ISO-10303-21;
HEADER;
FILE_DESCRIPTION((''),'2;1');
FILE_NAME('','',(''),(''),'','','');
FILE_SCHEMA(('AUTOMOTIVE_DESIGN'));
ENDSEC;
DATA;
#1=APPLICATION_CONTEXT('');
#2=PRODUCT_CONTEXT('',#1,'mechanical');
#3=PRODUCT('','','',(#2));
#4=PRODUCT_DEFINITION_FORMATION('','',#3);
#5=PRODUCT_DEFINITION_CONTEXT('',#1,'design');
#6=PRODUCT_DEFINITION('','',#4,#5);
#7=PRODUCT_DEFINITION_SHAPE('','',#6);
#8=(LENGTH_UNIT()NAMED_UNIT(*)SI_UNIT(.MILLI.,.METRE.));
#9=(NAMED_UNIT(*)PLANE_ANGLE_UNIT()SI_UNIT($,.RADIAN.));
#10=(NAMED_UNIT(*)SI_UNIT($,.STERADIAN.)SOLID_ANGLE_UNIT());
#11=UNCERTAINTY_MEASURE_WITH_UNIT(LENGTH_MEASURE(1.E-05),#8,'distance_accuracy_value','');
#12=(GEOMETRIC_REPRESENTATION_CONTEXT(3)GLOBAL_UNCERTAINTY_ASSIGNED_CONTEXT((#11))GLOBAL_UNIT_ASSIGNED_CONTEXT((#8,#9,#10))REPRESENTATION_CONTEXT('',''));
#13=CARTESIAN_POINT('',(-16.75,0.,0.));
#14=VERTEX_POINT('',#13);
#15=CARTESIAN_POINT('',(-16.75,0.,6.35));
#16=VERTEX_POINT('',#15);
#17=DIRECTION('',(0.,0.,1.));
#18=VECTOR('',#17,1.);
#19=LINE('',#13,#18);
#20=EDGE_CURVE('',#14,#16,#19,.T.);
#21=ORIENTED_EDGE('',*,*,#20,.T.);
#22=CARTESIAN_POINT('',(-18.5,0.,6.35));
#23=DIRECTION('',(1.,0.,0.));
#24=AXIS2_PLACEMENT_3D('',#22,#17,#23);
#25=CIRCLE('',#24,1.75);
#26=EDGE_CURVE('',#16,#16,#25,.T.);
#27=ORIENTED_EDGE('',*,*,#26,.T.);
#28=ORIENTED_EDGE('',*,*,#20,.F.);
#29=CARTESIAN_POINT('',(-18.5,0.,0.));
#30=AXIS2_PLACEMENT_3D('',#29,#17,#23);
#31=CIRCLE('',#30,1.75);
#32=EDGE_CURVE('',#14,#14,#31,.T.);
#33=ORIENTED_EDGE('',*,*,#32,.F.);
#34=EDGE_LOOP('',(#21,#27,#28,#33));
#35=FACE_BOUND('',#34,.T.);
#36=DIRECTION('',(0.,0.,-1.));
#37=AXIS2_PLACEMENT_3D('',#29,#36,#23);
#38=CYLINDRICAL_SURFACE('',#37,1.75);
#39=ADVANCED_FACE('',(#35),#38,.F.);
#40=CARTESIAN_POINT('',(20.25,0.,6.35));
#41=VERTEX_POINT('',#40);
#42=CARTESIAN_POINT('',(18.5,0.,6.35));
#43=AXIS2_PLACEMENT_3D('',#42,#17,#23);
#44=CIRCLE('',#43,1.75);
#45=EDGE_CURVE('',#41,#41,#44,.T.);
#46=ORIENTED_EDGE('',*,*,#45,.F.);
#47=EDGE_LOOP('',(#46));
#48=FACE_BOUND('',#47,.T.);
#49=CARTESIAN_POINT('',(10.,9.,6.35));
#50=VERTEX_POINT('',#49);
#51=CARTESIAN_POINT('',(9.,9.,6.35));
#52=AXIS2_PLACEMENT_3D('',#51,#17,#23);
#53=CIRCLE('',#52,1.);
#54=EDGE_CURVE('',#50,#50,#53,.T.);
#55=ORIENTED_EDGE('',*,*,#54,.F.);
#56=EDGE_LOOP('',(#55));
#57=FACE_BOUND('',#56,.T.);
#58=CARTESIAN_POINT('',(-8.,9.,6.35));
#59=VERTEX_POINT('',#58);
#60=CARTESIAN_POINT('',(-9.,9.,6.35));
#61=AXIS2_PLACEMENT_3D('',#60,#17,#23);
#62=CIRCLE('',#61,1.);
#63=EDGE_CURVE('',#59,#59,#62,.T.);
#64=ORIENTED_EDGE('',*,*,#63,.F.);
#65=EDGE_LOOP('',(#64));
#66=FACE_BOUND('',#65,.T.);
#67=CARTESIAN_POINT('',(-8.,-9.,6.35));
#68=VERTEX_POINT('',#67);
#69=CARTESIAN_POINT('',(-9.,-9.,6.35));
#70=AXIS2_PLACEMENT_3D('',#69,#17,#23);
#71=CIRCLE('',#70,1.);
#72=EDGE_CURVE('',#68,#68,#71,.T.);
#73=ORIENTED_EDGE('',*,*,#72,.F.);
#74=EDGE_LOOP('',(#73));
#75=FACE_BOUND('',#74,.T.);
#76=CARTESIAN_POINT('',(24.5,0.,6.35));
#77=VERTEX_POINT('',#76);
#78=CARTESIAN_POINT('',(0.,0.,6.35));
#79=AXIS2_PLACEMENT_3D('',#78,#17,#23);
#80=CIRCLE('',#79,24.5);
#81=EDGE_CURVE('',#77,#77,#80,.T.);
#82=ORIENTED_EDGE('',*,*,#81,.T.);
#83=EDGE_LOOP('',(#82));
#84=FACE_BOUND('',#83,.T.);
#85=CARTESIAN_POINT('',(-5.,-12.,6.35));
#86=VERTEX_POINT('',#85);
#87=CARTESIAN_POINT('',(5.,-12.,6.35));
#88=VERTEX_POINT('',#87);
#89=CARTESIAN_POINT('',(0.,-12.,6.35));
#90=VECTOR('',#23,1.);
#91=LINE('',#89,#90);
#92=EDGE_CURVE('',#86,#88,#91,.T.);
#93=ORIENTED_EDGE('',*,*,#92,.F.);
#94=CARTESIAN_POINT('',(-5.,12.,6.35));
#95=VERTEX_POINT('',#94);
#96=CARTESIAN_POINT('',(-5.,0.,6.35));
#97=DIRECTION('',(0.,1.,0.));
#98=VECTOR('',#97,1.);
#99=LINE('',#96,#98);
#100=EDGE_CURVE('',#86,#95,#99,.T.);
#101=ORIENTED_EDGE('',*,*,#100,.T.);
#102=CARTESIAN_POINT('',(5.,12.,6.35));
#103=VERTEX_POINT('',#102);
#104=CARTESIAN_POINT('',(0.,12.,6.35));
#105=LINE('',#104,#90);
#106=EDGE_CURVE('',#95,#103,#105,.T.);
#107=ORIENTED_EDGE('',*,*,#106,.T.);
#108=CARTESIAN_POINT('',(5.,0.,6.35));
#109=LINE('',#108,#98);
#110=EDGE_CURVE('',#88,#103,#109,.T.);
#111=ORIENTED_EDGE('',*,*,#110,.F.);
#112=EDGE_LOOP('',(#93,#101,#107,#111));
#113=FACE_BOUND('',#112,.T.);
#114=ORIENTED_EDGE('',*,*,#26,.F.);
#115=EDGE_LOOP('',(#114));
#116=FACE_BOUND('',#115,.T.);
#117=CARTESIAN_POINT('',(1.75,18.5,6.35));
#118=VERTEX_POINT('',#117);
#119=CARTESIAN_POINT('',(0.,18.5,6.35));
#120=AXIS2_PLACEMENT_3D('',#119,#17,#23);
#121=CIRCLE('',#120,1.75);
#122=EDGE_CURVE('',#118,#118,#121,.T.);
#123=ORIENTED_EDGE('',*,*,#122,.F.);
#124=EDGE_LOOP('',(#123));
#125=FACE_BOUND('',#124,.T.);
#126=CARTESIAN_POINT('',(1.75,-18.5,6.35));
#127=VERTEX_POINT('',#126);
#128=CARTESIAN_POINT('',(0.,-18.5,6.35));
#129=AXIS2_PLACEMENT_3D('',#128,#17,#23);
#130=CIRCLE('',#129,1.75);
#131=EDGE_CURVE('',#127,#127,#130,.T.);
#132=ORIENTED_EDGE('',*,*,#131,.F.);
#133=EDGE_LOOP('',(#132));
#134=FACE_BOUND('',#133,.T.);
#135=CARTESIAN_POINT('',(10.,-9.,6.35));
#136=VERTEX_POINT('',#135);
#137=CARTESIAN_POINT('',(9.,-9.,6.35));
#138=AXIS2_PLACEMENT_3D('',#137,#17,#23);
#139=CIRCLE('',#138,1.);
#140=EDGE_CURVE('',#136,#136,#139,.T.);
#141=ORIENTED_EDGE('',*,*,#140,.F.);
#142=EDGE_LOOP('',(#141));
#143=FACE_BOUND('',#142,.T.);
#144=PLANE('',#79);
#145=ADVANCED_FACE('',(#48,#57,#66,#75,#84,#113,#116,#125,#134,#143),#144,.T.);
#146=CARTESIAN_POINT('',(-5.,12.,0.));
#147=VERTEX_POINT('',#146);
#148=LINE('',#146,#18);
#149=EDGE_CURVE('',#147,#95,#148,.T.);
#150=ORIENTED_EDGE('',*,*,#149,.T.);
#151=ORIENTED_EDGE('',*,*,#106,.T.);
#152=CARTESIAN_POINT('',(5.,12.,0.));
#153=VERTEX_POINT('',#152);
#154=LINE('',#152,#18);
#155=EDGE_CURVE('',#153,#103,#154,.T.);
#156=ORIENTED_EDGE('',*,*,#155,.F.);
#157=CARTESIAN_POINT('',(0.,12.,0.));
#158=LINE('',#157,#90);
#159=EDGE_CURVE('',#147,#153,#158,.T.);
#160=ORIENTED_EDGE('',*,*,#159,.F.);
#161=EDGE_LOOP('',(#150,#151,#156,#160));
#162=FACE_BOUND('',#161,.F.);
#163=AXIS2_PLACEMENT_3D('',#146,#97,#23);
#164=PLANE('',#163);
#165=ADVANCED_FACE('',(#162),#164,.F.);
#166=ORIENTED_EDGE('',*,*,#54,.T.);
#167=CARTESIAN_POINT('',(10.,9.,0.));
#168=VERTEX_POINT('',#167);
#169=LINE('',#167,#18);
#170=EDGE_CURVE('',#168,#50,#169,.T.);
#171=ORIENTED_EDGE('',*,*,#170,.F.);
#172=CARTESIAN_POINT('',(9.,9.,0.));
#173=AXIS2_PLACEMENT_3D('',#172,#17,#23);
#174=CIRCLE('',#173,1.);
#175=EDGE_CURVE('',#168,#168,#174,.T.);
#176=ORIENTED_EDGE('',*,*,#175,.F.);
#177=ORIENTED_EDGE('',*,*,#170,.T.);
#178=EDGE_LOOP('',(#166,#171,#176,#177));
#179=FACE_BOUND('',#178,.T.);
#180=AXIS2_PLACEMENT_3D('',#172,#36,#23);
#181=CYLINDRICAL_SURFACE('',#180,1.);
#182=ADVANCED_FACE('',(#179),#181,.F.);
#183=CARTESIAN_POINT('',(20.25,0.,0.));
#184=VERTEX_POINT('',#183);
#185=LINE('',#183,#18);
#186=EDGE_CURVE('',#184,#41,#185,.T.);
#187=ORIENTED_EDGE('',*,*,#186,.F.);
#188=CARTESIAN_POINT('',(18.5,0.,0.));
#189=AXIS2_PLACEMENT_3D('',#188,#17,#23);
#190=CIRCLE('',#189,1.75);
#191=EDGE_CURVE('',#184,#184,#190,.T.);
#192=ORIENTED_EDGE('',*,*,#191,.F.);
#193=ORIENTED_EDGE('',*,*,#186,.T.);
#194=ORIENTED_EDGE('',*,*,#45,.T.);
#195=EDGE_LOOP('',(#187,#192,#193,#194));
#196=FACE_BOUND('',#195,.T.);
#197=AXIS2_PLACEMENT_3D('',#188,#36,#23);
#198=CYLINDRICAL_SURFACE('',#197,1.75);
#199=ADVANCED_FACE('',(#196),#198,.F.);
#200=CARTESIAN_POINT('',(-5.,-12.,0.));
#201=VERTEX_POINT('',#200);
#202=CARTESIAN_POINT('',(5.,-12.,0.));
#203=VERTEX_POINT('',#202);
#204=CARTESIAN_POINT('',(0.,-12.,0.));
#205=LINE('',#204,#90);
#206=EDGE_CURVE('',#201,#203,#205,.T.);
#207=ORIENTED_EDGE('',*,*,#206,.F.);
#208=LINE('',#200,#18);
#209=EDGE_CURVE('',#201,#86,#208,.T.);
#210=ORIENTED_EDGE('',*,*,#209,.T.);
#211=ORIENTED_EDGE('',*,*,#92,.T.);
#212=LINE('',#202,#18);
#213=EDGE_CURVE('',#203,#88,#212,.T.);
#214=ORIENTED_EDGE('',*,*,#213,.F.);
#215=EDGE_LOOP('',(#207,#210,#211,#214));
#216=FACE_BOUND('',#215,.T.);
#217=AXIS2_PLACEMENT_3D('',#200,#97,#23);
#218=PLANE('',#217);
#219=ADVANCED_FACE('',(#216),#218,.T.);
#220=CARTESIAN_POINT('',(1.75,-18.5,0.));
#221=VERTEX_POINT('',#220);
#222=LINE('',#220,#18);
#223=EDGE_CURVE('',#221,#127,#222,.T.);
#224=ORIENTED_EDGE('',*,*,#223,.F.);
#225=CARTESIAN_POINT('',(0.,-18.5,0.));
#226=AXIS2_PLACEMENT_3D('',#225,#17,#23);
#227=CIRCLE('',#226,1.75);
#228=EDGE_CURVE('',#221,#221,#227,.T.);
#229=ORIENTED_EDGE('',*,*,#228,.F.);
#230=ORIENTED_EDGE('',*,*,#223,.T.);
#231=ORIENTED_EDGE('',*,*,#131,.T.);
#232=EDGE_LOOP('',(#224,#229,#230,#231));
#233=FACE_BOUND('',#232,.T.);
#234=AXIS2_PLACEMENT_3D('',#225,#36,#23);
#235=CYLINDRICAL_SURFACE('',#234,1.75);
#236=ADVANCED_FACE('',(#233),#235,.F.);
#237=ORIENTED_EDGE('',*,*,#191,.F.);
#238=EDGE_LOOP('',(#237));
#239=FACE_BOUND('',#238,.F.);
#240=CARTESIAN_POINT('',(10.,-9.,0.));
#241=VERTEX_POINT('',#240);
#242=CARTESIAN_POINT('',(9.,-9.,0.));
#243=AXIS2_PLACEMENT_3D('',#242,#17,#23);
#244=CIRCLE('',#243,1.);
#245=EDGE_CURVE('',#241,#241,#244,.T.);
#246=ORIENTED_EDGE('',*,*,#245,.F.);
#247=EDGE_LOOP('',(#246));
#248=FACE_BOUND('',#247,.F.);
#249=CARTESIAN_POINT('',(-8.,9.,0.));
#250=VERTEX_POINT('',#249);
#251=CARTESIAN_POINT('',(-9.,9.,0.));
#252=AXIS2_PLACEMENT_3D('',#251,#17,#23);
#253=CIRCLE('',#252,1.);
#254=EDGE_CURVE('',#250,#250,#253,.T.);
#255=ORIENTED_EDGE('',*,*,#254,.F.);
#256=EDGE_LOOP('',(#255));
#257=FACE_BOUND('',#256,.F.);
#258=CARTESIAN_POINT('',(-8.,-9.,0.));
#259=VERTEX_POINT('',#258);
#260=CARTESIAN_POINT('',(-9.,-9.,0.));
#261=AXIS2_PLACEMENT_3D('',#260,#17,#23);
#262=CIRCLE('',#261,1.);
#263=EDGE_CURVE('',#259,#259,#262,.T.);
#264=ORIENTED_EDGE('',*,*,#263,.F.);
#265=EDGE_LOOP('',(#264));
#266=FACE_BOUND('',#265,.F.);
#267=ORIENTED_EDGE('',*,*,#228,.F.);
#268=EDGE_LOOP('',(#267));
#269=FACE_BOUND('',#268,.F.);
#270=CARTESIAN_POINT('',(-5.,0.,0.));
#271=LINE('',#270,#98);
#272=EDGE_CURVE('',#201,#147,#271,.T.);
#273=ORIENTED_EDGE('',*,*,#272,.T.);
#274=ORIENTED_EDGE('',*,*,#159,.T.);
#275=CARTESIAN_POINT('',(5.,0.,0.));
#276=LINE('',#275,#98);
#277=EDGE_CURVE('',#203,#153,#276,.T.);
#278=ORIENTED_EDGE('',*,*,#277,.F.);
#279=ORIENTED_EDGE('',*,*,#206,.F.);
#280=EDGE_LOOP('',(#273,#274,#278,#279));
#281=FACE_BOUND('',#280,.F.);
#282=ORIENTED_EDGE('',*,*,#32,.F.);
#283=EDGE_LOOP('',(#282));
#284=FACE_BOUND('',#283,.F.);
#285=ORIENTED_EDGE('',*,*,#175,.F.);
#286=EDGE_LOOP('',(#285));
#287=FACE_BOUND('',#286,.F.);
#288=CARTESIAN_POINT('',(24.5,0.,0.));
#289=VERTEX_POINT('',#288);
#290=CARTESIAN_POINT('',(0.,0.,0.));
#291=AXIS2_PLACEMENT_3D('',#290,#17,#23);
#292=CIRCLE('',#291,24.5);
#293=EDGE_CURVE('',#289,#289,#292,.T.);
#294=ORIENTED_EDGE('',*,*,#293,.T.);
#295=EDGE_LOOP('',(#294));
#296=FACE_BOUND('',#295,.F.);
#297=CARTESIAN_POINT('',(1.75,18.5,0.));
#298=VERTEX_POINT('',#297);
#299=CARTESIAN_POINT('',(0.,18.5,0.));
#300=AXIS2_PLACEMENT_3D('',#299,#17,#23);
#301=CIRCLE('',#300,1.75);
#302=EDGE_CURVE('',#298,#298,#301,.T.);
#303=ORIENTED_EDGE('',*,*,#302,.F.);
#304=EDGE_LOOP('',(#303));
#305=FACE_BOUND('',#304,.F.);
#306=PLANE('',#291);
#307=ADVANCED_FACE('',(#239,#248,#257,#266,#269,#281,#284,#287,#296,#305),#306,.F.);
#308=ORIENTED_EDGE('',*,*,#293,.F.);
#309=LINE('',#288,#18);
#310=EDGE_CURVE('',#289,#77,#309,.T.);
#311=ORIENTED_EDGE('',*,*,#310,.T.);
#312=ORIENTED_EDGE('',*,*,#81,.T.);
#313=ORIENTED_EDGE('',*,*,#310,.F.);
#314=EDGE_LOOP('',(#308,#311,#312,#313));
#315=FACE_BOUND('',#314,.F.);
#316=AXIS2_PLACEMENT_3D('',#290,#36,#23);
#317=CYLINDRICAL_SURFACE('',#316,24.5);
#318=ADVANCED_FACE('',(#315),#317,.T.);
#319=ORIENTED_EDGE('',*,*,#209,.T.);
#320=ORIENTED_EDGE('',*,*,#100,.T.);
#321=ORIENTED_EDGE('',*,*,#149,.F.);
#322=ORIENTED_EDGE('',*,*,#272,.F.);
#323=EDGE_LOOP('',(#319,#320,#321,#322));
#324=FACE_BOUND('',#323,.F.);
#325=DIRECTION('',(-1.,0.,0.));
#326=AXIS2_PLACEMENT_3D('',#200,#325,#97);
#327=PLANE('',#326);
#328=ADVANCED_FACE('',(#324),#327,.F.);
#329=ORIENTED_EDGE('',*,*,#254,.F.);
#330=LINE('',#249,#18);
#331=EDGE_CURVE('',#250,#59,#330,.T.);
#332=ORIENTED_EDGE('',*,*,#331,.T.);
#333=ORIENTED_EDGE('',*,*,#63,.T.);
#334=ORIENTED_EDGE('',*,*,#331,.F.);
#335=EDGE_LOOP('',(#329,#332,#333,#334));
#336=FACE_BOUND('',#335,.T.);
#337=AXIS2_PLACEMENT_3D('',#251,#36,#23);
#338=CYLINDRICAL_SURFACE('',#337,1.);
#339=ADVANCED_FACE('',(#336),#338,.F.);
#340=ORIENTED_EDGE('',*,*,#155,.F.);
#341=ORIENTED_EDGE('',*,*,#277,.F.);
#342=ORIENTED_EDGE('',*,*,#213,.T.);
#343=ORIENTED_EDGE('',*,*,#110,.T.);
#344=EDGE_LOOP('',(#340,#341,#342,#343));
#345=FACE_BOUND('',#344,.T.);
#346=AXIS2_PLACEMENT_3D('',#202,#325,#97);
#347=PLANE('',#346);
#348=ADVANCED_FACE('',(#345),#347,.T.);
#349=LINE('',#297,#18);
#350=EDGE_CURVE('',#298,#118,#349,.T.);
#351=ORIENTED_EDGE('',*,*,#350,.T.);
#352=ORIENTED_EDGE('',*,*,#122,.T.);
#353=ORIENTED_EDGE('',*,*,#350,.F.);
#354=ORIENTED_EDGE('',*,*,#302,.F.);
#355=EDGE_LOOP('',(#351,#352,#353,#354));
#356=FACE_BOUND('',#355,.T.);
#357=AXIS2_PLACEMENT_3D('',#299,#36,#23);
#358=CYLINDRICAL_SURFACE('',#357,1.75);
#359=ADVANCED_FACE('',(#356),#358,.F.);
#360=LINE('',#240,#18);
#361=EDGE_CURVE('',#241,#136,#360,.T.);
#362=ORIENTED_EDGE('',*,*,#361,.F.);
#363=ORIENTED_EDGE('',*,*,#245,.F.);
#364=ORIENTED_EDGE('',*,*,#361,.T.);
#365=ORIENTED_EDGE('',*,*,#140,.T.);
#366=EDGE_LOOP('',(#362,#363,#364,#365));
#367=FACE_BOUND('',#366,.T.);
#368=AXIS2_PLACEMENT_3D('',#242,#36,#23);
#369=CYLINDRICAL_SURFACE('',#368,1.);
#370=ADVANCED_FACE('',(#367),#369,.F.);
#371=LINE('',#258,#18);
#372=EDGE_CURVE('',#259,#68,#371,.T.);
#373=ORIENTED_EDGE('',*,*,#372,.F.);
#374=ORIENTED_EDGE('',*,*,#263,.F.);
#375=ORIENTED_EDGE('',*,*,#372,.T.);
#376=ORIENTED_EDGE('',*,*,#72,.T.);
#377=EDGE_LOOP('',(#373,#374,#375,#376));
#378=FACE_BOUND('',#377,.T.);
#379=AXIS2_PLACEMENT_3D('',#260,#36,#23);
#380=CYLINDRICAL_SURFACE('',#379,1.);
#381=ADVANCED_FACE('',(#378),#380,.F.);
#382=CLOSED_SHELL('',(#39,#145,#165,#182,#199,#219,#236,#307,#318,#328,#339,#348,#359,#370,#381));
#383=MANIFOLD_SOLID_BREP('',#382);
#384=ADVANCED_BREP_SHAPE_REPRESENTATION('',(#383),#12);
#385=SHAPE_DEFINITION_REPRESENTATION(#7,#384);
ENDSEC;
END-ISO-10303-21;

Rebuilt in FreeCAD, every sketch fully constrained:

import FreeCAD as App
import Part
import Sketcher
from FreeCAD import Vector
Q = App.Units.Quantity

doc = App.newDocument("Part")
body = doc.addObject("PartDesign::Body", "Body")

sketch1 = doc.addObject("Sketcher::SketchObject", "Sketch")
body.addObject(sketch1)
sketch1.AttachmentSupport = (doc.XY_Plane, [""])
sketch1.MapMode = "FlatFace"
sketch1.addGeometry([
    Part.Circle(Vector(0, 0, 0), Vector(0, 0, 1), 24.5),
    Part.Circle(Vector(-9, -9, 0), Vector(0, 0, 1), 1),
    Part.Circle(Vector(0, -18.5, 0), Vector(0, 0, 1), 1.8),
    Part.Circle(Vector(9, -9, 0), Vector(0, 0, 1), 1),
    Part.Circle(Vector(-18.5, 0, 0), Vector(0, 0, 1), 1.8),
    Part.Circle(Vector(-9, 9, 0), Vector(0, 0, 1), 1),
    Part.LineSegment(Vector(5, -12, 0), Vector(-5, -12, 0)),
    Part.LineSegment(Vector(-5, -12, 0), Vector(-5, 12, 0)),
    Part.LineSegment(Vector(-5, 12, 0), Vector(5, 12, 0)),
    Part.LineSegment(Vector(5, 12, 0), Vector(5, -12, 0)),
    Part.Circle(Vector(9, 9, 0), Vector(0, 0, 1), 1),
    Part.Circle(Vector(18.5, 0, 0), Vector(0, 0, 1), 1.8),
    Part.Circle(Vector(0, 18.5, 0), Vector(0, 0, 1), 1.8),
], False)
sketch1.addConstraint([
    Sketcher.Constraint("Coincident", 6, 2, 7, 1),
    Sketcher.Constraint("Coincident", 7, 2, 8, 1),
    Sketcher.Constraint("Coincident", 8, 2, 9, 1),
    Sketcher.Constraint("Coincident", 9, 2, 6, 1),
    Sketcher.Constraint("Horizontal", 6),
    Sketcher.Constraint("Vertical", 7),
    Sketcher.Constraint("Horizontal", 8),
    Sketcher.Constraint("Vertical", 9),
    Sketcher.Constraint("Coincident", 0, 3, -1, 1),
    Sketcher.Constraint("Equal", 1, 3),
    Sketcher.Constraint("Equal", 2, 4),
    Sketcher.Constraint("Equal", 3, 5),
    Sketcher.Constraint("Equal", 5, 10),
    Sketcher.Constraint("Equal", 4, 11),
    Sketcher.Constraint("Equal", 11, 12),
    Sketcher.Constraint("Symmetric", 3, 3, 5, 3, -1, 1),
    Sketcher.Constraint("Symmetric", 1, 3, 10, 3, -1, 1),
    Sketcher.Constraint("Symmetric", 4, 3, 11, 3, -1, 1),
    Sketcher.Constraint("Symmetric", 2, 3, 12, 3, -1, 1),
    Sketcher.Constraint("Symmetric", 6, 2, 8, 2, -1, 1),
    Sketcher.Constraint("Symmetric", 1, 3, 3, 3, -2),
    Sketcher.Constraint("PointOnObject", 2, 3, -2),
    Sketcher.Constraint("PointOnObject", 4, 3, -1),
    Sketcher.Constraint("Diameter", 0, Q("49 mm")),
    Sketcher.Constraint("Diameter", 1, Q("2 mm")),
    Sketcher.Constraint("Diameter", 2, Q("3.5 mm")),
    Sketcher.Constraint("DistanceX", 6, 2, 6, 1, Q("10 mm")),
    Sketcher.Constraint("DistanceY", 7, 1, 7, 2, Q("24 mm")),
    Sketcher.Constraint("DistanceX", 1, 3, -1, 1, Q("9 mm")),
    Sketcher.Constraint("DistanceY", 1, 3, -1, 1, Q("9 mm")),
    Sketcher.Constraint("DistanceY", 2, 3, -1, 1, Q("18.5 mm")),
    Sketcher.Constraint("DistanceX", 4, 3, -1, 1, Q("18.5 mm")),
])
pad1 = doc.addObject("PartDesign::Pad", "Pad")
body.addObject(pad1)
pad1.Profile = sketch1
pad1.Length = 6.35

doc.recompute()
